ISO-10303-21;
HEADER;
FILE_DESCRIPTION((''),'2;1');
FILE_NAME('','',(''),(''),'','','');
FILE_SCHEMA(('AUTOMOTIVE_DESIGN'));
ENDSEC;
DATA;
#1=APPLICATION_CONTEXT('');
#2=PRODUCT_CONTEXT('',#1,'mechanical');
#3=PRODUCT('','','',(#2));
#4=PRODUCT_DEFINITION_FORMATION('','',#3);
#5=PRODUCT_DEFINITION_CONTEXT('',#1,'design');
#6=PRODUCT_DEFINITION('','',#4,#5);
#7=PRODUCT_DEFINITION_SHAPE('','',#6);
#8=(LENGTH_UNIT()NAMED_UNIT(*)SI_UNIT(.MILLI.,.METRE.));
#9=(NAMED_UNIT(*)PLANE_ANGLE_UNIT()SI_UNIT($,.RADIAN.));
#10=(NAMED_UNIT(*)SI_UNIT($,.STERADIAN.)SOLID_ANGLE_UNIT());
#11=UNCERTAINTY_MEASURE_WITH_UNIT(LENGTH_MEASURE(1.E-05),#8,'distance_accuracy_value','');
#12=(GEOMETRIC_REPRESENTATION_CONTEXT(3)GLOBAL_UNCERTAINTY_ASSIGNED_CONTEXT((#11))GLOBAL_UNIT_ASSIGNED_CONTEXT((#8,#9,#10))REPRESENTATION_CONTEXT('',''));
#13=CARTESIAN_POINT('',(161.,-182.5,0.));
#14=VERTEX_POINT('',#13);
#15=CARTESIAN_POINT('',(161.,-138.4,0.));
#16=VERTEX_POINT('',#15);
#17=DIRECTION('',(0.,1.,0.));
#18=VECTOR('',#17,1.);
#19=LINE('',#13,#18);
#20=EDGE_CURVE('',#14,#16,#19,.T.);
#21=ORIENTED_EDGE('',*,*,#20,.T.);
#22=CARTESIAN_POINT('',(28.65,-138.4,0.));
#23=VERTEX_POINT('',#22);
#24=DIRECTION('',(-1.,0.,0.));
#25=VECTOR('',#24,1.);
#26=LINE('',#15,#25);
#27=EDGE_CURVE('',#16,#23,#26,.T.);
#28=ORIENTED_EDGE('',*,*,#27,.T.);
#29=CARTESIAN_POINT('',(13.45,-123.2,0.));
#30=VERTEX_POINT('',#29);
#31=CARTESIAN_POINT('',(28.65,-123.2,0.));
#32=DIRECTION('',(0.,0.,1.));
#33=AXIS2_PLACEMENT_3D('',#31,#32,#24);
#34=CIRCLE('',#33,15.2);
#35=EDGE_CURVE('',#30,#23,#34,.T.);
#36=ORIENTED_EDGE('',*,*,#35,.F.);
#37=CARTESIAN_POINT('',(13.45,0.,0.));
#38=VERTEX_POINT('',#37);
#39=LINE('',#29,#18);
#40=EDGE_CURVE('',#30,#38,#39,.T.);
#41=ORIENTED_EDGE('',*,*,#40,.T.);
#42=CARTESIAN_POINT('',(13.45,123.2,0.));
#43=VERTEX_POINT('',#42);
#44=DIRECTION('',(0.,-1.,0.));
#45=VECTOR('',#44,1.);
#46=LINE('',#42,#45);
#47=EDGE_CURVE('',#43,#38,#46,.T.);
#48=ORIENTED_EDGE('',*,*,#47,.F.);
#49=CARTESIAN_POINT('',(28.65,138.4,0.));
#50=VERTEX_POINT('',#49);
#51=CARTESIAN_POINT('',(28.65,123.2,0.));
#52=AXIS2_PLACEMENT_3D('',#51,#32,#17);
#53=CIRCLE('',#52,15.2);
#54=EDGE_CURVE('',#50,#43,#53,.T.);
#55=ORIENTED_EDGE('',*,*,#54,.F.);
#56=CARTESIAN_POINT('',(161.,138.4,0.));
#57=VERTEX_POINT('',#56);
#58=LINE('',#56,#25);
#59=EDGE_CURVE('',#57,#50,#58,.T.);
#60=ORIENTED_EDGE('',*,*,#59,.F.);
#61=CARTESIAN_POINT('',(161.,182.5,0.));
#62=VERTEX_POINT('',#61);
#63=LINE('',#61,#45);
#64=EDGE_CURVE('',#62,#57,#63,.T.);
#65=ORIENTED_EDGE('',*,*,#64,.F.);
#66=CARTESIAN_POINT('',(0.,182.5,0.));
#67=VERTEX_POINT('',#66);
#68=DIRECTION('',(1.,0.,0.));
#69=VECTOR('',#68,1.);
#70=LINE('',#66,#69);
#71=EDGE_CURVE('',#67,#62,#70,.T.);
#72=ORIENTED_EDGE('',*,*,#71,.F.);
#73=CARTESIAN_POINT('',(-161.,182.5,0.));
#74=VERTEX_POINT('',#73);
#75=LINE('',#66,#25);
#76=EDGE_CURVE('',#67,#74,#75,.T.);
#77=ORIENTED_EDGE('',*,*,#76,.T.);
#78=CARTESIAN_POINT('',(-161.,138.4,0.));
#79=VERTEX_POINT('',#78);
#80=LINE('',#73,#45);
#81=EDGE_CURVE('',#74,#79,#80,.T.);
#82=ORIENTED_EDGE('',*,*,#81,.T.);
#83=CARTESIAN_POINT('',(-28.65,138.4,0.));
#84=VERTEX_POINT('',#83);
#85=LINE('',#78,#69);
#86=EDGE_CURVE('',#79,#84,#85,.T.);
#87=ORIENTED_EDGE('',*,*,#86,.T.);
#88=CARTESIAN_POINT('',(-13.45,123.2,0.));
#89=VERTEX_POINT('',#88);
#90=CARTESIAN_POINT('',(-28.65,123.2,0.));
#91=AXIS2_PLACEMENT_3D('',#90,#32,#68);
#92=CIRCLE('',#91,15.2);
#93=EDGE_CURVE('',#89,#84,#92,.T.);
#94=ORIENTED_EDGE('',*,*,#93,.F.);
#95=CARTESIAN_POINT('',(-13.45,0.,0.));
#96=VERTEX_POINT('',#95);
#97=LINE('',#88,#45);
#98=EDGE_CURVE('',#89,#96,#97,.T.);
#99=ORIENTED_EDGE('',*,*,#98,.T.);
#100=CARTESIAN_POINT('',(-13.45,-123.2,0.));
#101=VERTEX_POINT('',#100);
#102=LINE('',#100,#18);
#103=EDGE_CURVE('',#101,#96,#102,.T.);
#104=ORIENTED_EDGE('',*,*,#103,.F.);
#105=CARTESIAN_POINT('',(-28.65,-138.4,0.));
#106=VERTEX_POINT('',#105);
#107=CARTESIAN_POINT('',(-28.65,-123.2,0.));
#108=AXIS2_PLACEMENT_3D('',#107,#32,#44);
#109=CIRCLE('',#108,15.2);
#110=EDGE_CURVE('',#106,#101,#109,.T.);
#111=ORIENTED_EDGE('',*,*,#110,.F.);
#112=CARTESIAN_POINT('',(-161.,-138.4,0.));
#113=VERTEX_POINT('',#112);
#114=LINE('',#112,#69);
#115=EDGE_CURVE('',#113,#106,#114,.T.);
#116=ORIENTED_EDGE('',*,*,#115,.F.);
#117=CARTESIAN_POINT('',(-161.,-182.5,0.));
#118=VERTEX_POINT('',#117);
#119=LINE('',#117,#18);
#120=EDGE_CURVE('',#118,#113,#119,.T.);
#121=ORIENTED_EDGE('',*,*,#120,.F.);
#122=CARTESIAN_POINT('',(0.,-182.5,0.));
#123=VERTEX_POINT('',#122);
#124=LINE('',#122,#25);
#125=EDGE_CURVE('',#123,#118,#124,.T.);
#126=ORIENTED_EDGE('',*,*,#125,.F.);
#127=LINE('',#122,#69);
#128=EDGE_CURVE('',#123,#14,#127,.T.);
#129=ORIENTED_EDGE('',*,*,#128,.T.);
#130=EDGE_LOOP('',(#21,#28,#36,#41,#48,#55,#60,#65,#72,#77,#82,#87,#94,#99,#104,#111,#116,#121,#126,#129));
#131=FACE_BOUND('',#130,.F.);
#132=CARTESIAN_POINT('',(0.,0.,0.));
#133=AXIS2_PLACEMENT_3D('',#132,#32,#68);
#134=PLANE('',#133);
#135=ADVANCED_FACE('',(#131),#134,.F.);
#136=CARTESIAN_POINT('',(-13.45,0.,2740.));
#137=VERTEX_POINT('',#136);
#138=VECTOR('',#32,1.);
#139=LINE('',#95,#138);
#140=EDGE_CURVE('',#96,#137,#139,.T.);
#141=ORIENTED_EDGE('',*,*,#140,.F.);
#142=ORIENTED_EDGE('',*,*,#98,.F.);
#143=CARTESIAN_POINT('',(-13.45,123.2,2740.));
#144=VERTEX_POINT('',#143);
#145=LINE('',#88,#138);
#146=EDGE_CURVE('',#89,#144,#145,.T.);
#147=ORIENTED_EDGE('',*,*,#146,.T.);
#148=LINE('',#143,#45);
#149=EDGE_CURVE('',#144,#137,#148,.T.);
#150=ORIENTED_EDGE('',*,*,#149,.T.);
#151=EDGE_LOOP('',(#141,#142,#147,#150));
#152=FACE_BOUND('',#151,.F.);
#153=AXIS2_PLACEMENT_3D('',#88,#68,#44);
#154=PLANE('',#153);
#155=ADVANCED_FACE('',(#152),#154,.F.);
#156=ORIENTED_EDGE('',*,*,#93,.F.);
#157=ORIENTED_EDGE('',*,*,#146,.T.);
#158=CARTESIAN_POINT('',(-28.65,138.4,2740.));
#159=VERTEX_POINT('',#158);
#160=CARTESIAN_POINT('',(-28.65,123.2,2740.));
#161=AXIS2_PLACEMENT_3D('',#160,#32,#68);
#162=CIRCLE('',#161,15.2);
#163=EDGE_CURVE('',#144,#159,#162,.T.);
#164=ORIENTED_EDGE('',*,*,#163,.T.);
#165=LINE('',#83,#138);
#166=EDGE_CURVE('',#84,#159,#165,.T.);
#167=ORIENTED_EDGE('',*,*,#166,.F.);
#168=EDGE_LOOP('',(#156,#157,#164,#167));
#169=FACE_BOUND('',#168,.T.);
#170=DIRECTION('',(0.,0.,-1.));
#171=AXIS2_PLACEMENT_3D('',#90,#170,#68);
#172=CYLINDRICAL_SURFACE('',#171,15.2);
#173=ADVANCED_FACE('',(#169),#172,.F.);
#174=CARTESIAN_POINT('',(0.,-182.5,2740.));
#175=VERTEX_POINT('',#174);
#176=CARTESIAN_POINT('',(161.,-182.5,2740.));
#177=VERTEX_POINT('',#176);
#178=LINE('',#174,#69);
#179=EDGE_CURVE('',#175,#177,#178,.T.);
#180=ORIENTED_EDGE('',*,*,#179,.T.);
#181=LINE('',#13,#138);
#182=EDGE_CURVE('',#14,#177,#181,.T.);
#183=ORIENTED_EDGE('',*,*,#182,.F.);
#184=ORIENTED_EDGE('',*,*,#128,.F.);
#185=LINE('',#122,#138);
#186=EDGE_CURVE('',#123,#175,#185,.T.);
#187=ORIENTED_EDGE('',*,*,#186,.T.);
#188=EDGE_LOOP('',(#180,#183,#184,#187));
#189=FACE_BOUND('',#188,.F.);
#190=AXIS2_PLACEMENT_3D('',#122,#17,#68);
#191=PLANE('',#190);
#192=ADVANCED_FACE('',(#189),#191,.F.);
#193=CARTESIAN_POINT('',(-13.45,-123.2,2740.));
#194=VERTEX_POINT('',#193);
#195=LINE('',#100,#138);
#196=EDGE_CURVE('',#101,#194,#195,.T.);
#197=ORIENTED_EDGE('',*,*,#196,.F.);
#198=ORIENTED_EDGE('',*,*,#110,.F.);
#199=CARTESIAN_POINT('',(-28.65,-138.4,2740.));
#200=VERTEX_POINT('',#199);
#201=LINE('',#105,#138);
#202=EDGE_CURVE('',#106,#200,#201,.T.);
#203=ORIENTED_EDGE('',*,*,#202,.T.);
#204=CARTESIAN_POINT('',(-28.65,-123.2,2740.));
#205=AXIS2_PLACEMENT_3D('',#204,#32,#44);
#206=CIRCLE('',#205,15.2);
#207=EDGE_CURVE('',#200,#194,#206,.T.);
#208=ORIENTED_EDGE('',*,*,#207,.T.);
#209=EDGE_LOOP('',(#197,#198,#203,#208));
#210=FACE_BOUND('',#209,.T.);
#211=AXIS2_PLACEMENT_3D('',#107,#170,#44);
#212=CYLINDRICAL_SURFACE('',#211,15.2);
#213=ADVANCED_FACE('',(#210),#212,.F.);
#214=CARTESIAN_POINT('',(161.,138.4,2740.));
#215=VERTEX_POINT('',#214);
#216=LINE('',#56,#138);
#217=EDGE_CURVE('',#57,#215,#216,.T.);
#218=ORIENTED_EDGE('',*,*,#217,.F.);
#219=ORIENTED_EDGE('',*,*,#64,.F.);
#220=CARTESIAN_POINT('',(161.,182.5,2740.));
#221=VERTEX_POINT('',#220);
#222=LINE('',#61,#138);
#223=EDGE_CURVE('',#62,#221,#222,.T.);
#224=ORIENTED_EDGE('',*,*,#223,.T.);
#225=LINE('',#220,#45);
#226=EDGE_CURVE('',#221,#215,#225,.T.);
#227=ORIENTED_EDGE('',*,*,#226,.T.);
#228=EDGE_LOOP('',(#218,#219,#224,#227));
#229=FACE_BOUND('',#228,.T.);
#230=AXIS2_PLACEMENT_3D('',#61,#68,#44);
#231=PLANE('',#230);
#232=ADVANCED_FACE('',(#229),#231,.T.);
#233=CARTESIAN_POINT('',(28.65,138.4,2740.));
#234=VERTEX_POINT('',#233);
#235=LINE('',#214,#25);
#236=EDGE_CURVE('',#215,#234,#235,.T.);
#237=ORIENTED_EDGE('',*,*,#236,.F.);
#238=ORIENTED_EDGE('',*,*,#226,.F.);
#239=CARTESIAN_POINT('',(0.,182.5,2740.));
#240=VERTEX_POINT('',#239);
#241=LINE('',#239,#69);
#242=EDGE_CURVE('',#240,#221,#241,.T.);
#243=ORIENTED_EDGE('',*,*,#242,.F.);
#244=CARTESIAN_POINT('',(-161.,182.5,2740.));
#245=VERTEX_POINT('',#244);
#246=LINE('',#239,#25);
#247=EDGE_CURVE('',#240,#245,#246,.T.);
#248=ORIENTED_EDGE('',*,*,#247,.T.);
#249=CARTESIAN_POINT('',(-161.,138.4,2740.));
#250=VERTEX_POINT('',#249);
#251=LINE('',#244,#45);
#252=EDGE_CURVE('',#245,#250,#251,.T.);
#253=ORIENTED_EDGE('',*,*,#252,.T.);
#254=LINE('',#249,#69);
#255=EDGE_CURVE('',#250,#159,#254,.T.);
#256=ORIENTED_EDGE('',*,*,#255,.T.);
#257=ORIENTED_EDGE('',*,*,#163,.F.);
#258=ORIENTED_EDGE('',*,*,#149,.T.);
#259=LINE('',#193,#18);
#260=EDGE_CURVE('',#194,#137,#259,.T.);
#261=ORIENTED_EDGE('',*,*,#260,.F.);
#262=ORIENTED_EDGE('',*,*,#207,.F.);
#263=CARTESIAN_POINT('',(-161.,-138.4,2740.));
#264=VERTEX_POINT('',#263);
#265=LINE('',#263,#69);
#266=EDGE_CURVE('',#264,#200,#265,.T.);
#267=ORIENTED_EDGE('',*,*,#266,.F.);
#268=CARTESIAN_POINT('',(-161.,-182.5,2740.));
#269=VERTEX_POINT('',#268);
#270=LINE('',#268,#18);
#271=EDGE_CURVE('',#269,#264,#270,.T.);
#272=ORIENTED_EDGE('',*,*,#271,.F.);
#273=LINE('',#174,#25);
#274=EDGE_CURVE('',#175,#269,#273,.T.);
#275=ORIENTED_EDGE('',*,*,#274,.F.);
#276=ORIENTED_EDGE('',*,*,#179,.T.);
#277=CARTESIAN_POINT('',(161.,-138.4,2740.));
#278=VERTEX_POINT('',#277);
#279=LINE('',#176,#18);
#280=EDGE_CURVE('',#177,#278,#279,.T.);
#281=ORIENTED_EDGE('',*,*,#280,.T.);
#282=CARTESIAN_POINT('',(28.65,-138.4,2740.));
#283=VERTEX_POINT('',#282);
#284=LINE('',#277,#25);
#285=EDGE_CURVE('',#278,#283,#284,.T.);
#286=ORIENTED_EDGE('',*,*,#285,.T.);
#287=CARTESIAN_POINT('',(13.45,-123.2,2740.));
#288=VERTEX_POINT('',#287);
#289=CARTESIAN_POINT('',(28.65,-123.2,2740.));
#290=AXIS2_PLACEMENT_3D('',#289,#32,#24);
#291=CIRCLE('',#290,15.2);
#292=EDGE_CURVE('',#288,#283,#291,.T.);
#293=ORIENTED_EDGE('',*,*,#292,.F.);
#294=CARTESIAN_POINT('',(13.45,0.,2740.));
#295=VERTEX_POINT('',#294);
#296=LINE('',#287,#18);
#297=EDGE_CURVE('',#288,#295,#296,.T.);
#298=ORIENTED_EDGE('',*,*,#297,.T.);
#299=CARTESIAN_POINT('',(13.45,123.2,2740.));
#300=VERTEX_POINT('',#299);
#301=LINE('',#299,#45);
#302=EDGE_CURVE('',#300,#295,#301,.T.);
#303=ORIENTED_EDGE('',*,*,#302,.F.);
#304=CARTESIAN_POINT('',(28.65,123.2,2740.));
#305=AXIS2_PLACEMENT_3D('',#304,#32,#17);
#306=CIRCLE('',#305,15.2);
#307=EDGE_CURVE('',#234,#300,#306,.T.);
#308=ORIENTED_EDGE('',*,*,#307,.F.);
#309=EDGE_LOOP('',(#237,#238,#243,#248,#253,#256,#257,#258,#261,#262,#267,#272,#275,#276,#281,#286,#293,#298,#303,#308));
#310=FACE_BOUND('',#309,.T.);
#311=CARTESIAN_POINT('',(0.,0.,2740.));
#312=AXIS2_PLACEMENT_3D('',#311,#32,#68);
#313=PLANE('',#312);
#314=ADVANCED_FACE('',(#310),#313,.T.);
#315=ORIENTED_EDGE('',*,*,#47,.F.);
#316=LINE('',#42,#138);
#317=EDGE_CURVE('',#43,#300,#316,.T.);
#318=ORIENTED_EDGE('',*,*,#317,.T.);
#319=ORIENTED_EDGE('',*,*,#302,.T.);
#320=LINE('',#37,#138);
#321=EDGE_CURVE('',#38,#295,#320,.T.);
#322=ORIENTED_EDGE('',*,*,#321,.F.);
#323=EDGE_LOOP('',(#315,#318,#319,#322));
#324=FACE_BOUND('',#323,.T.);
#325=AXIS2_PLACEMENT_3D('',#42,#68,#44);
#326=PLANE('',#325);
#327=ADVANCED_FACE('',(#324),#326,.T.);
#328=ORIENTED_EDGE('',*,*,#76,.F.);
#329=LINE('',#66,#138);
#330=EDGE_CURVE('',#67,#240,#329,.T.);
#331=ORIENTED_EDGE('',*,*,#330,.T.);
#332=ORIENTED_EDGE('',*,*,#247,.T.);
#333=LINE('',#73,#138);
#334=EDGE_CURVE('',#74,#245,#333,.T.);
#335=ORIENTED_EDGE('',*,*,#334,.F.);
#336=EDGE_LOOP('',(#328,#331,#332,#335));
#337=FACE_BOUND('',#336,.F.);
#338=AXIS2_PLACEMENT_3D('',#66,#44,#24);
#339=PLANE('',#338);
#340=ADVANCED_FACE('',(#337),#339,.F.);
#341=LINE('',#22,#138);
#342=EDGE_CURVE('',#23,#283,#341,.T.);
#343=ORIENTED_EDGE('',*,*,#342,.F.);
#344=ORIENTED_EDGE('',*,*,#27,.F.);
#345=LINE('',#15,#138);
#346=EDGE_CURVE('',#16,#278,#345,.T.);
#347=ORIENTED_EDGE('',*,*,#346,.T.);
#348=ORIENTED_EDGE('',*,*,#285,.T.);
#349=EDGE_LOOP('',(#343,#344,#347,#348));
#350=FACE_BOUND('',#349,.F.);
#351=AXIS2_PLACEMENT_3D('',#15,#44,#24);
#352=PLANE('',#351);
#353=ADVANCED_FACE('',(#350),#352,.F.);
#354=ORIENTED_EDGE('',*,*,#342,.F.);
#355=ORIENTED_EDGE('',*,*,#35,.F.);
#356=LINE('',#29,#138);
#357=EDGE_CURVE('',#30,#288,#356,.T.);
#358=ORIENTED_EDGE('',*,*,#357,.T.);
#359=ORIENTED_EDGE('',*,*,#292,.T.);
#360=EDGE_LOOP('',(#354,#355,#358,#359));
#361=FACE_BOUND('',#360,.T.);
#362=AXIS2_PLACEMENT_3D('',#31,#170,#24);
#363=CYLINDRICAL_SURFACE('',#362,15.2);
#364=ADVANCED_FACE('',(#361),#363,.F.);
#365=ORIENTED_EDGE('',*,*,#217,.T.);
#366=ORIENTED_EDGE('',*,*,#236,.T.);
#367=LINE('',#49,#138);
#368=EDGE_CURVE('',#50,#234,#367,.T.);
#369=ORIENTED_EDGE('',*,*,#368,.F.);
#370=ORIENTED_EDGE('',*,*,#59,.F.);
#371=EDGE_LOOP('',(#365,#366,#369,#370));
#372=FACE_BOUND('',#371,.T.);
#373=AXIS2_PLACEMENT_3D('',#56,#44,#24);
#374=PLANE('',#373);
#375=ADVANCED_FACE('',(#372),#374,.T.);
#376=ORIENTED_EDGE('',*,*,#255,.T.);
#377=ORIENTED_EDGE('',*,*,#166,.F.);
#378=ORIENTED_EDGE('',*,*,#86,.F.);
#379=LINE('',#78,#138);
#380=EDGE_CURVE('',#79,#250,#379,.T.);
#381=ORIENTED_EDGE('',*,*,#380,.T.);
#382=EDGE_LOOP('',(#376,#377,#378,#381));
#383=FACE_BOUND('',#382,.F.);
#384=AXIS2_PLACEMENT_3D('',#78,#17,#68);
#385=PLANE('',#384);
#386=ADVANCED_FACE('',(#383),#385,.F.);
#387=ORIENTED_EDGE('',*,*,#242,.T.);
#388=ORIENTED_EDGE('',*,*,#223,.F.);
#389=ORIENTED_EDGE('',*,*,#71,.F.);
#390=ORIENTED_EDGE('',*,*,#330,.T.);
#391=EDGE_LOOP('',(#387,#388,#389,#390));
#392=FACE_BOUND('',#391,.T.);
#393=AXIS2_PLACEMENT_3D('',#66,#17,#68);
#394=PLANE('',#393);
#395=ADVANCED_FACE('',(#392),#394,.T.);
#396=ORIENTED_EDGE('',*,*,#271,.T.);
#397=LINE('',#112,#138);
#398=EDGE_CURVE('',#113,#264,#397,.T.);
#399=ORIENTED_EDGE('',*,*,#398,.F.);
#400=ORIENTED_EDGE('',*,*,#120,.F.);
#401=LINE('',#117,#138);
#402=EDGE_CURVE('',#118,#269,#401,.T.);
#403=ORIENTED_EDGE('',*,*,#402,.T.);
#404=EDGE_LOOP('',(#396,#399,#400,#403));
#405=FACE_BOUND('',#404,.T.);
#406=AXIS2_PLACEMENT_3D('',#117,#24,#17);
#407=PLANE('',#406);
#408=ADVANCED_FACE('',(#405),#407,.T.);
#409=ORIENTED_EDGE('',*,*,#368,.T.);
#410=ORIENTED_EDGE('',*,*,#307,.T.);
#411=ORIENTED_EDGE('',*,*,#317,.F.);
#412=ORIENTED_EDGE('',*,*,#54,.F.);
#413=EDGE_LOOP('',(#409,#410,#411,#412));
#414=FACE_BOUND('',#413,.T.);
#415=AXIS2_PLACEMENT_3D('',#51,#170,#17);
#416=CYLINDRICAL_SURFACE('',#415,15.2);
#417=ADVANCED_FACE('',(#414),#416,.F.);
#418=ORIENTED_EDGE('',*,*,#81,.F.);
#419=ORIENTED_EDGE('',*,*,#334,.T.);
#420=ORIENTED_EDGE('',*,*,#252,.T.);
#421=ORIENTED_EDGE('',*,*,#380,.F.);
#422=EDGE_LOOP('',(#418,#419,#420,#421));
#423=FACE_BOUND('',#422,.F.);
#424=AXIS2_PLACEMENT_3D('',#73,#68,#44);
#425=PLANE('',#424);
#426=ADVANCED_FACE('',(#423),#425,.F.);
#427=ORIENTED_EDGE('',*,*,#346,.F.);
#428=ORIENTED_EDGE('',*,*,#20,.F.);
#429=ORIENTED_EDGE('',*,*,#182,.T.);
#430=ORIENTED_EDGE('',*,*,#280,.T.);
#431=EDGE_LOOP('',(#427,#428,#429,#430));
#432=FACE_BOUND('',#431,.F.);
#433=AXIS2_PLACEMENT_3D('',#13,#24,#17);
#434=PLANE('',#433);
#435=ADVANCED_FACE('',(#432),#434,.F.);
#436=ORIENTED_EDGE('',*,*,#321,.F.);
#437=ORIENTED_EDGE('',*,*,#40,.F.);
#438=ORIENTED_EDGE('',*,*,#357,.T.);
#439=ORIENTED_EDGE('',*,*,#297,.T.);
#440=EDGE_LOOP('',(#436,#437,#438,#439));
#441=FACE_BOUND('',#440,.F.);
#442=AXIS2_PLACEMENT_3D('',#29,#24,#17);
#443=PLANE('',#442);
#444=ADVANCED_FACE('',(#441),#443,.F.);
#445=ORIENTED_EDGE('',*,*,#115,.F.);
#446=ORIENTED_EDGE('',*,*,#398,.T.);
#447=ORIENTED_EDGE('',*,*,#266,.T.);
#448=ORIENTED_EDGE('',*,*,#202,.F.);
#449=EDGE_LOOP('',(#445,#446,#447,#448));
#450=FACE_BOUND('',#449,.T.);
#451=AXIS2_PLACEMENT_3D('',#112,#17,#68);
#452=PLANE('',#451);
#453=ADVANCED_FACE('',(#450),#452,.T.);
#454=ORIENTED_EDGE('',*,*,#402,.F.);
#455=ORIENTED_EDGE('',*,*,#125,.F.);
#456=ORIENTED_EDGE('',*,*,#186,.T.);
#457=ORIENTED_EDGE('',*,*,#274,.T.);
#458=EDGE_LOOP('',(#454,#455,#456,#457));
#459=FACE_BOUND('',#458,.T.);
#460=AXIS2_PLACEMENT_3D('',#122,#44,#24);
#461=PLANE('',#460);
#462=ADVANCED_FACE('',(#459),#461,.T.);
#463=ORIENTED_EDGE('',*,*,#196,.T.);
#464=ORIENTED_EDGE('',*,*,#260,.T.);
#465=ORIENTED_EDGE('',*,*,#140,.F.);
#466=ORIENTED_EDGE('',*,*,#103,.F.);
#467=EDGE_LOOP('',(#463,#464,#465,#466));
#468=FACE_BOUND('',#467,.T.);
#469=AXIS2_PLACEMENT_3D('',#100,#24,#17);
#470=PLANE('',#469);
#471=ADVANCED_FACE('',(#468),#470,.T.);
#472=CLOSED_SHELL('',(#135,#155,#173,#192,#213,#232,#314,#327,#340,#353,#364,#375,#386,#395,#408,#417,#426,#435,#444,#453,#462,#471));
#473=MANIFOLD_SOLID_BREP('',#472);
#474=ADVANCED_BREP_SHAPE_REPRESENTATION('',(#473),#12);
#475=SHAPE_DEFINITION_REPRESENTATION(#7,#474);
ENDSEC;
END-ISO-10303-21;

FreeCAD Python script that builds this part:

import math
import FreeCAD as App
import Part
import Sketcher

V = App.Vector

doc = App.newDocument("Part")
body = doc.addObject("PartDesign::Body", "Body")

# Sketch on XY plane
sketch1 = body.newObject("Sketcher::SketchObject", "Sketch")
sketch1.AttachmentSupport = (doc.getObject("XY_Plane"), [""])
sketch1.MapMode = "FlatFace"
sketch1.addGeometry(Part.LineSegment(V(-161, -138.4, 0), V(-161, -182.5, 0)), False)
sketch1.addGeometry(Part.LineSegment(V(-161, -182.5, 0), V(161, -182.5, 0)), False)
sketch1.addGeometry(Part.LineSegment(V(161, -182.5, 0), V(161, -138.4, 0)), False)
sketch1.addGeometry(Part.LineSegment(V(161, -138.4, 0), V(28.65, -138.4, 0)), False)
sketch1.addGeometry(Part.ArcOfCircle(Part.Circle(V(28.65, -123.2, 0), V(0, 0, 1), 15.2), math.radians(180), math.radians(270)), False)
sketch1.addGeometry(Part.LineSegment(V(13.45, -123.2, 0), V(13.45, 123.2, 0)), False)
sketch1.addGeometry(Part.ArcOfCircle(Part.Circle(V(28.65, 123.2, 0), V(0, 0, 1), 15.2), math.radians(90), math.radians(180)), False)
sketch1.addGeometry(Part.LineSegment(V(28.65, 138.4, 0), V(161, 138.4, 0)), False)
sketch1.addGeometry(Part.LineSegment(V(161, 138.4, 0), V(161, 182.5, 0)), False)
sketch1.addGeometry(Part.LineSegment(V(161, 182.5, 0), V(-161, 182.5, 0)), False)
sketch1.addGeometry(Part.LineSegment(V(-161, 182.5, 0), V(-161, 138.4, 0)), False)
sketch1.addGeometry(Part.LineSegment(V(-161, 138.4, 0), V(-28.65, 138.4, 0)), False)
sketch1.addGeometry(Part.ArcOfCircle(Part.Circle(V(-28.65, 123.2, 0), V(0, 0, 1), 15.2), math.radians(0), math.radians(90)), False)
sketch1.addGeometry(Part.LineSegment(V(-13.45, 123.2, 0), V(-13.45, -123.2, 0)), False)
sketch1.addGeometry(Part.ArcOfCircle(Part.Circle(V(-28.65, -123.2, 0), V(0, 0, 1), 15.2), math.radians(-90), math.radians(0)), False)
sketch1.addGeometry(Part.LineSegment(V(-28.65, -138.4, 0), V(-161, -138.4, 0)), False)
sketch1.addConstraint(Sketcher.Constraint("Coincident", 0, 2, 1, 1))
sketch1.addConstraint(Sketcher.Constraint("Coincident", 1, 2, 2, 1))
sketch1.addConstraint(Sketcher.Constraint("Coincident", 2, 2, 3, 1))
sketch1.addConstraint(Sketcher.Constraint("Tangent", 3, 2, 4, 2))
sketch1.addConstraint(Sketcher.Constraint("Tangent", 4, 1, 5, 1))
sketch1.addConstraint(Sketcher.Constraint("Tangent", 5, 2, 6, 2))
sketch1.addConstraint(Sketcher.Constraint("Tangent", 6, 1, 7, 1))
sketch1.addConstraint(Sketcher.Constraint("Coincident", 7, 2, 8, 1))
sketch1.addConstraint(Sketcher.Constraint("Coincident", 8, 2, 9, 1))
sketch1.addConstraint(Sketcher.Constraint("Coincident", 9, 2, 10, 1))
sketch1.addConstraint(Sketcher.Constraint("Coincident", 10, 2, 11, 1))
sketch1.addConstraint(Sketcher.Constraint("Tangent", 11, 2, 12, 2))
sketch1.addConstraint(Sketcher.Constraint("Tangent", 12, 1, 13, 1))
sketch1.addConstraint(Sketcher.Constraint("Tangent", 13, 2, 14, 2))
sketch1.addConstraint(Sketcher.Constraint("Tangent", 14, 1, 15, 1))
sketch1.addConstraint(Sketcher.Constraint("Coincident", 15, 2, 0, 1))
sketch1.addConstraint(Sketcher.Constraint("Vertical", 0))
sketch1.addConstraint(Sketcher.Constraint("Horizontal", 1))
sketch1.addConstraint(Sketcher.Constraint("Vertical", 2))
sketch1.addConstraint(Sketcher.Constraint("Horizontal", 3))
sketch1.addConstraint(Sketcher.Constraint("Vertical", 5))
sketch1.addConstraint(Sketcher.Constraint("Horizontal", 7))
sketch1.addConstraint(Sketcher.Constraint("Vertical", 8))
sketch1.addConstraint(Sketcher.Constraint("Horizontal", 9))
sketch1.addConstraint(Sketcher.Constraint("Vertical", 10))
sketch1.addConstraint(Sketcher.Constraint("Horizontal", 11))
sketch1.addConstraint(Sketcher.Constraint("Vertical", 13))
sketch1.addConstraint(Sketcher.Constraint("Horizontal", 15))
sketch1.addConstraint(Sketcher.Constraint("Equal", 4, 6))
sketch1.addConstraint(Sketcher.Constraint("Equal", 6, 12))
sketch1.addConstraint(Sketcher.Constraint("Equal", 12, 14))
sketch1.addConstraint(Sketcher.Constraint("Symmetric", 4, 3, 12, 3, -1, 1))
sketch1.addConstraint(Sketcher.Constraint("Symmetric", 0, 2, 8, 2, -1, 1))
sketch1.addConstraint(Sketcher.Constraint("Symmetric", 7, 2, 10, 2, -2))
sketch1.addConstraint(Sketcher.Constraint("Symmetric", 2, 2, 15, 2, -2))
sketch1.addConstraint(Sketcher.Constraint("Radius", 4, 15.2))
sketch1.addConstraint(Sketcher.Constraint("DistanceY", 0, 2, 0, 1, 44.1))
sketch1.addConstraint(Sketcher.Constraint("DistanceX", 0, 2, -1, 1, 161.0))
sketch1.addConstraint(Sketcher.Constraint("DistanceY", 0, 2, -1, 1, 182.5))
sketch1.addConstraint(Sketcher.Constraint("DistanceX", -1, 1, 4, 1, 13.45))
pad1 = body.newObject("PartDesign::Pad", "Pad")
pad1.Profile = sketch1
pad1.Length = 2740

doc.recompute()
